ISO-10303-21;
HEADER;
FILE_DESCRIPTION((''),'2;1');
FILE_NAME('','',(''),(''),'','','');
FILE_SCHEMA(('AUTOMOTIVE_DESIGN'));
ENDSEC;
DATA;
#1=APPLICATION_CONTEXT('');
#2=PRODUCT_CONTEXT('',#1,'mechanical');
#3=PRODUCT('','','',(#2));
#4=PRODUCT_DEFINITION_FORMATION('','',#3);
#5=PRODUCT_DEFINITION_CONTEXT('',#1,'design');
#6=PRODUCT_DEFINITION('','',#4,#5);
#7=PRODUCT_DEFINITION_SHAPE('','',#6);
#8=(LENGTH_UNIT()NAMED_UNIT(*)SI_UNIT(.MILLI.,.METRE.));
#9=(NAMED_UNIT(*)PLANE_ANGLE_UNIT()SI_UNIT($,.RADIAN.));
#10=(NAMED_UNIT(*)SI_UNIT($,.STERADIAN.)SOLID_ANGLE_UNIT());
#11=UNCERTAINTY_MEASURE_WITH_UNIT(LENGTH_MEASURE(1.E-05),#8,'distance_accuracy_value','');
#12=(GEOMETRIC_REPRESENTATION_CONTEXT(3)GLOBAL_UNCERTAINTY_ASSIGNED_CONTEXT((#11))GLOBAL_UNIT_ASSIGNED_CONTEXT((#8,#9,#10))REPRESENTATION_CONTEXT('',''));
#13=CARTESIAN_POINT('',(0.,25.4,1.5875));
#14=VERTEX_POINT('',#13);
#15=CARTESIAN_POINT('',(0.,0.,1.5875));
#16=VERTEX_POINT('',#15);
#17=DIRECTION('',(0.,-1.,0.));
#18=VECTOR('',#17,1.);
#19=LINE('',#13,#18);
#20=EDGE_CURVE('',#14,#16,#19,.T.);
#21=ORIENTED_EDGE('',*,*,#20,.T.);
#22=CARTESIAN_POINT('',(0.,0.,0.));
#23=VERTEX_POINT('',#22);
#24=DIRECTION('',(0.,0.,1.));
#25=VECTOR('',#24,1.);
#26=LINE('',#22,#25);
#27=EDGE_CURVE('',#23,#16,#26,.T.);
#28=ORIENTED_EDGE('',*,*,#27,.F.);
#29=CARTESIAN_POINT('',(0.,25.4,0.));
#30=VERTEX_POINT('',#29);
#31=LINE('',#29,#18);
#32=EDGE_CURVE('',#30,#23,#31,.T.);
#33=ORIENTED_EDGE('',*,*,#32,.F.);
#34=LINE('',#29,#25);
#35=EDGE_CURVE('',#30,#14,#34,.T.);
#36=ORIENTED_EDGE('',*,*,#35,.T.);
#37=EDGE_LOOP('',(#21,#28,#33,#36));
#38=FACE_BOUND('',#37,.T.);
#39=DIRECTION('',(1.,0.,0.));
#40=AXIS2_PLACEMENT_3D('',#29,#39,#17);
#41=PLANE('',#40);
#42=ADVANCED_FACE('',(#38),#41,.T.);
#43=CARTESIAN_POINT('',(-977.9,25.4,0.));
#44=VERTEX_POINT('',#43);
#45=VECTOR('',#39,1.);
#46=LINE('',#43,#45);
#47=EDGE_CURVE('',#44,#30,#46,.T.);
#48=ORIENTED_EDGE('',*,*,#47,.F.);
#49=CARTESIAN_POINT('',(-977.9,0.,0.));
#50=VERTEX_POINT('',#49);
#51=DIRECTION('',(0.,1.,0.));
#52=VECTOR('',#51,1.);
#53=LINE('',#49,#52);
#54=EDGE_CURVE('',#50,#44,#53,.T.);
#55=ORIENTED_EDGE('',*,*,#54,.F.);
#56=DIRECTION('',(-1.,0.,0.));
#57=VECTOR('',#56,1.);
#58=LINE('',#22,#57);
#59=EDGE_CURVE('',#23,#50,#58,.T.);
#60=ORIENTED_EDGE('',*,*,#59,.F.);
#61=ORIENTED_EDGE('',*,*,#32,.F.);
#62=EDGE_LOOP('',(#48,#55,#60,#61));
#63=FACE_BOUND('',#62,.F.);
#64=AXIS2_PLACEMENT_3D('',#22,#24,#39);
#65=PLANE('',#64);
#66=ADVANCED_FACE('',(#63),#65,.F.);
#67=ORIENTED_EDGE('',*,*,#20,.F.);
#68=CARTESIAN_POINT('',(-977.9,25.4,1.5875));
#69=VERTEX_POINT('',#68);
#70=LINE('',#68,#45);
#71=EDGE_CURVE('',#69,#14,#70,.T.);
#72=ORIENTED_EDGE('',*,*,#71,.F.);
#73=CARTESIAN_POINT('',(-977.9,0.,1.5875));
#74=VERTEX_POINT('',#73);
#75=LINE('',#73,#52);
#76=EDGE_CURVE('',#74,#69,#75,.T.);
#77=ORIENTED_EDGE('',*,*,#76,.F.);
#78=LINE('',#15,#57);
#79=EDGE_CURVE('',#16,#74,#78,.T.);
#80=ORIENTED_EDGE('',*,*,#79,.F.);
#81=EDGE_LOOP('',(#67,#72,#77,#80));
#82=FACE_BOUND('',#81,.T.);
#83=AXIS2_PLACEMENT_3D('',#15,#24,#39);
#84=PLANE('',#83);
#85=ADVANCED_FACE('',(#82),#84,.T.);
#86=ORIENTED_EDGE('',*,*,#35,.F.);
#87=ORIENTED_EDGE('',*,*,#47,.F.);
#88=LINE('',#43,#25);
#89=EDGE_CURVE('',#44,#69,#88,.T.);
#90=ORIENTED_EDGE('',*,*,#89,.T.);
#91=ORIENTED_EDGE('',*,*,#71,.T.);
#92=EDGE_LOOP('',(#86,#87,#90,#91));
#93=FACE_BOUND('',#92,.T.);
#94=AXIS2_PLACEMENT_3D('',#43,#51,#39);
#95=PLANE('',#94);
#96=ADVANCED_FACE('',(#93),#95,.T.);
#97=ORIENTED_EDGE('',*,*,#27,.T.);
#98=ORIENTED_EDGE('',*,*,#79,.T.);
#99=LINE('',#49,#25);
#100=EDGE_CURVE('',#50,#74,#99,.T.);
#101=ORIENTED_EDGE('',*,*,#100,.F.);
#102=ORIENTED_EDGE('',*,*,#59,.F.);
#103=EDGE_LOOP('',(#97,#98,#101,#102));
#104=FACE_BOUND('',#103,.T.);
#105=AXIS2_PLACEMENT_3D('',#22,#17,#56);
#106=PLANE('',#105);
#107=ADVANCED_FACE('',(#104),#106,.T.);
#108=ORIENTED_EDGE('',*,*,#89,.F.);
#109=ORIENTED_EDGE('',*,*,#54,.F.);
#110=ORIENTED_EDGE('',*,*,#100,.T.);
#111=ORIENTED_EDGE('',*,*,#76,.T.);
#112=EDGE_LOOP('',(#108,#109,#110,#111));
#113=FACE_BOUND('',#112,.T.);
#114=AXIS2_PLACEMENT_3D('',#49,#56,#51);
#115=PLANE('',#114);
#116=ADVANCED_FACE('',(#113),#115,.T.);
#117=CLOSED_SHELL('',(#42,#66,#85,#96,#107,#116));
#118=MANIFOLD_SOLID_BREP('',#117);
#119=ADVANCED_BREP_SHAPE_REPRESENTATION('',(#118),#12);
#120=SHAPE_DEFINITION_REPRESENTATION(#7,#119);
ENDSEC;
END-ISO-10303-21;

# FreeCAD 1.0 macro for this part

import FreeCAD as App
import Part
import Sketcher
Q = App.Units.Quantity

doc = App.newDocument("Part")
body = doc.addObject("PartDesign::Body", "Body")

# Sketch on XY plane
sketch1 = body.newObject("Sketcher::SketchObject", "Sketch")
sketch1.AttachmentSupport = (doc.getObject("XY_Plane"), [""])
sketch1.MapMode = "FlatFace"
sketch1.addGeometry(Part.LineSegment(App.Vector(-978, 0, 0), App.Vector(0, 0, 0)), False)
sketch1.addGeometry(Part.LineSegment(App.Vector(0, 0, 0), App.Vector(0, 25, 0)), False)
sketch1.addGeometry(Part.LineSegment(App.Vector(0, 25, 0), App.Vector(-978, 25, 0)), False)
sketch1.addGeometry(Part.LineSegment(App.Vector(-978, 25, 0), App.Vector(-978, 0, 0)), False)
sketch1.addConstraint(Sketcher.Constraint("Coincident", 0, 2, 1, 1))
sketch1.addConstraint(Sketcher.Constraint("Coincident", 1, 2, 2, 1))
sketch1.addConstraint(Sketcher.Constraint("Coincident", 2, 2, 3, 1))
sketch1.addConstraint(Sketcher.Constraint("Coincident", 3, 2, 0, 1))
sketch1.addConstraint(Sketcher.Constraint("Horizontal", 0))
sketch1.addConstraint(Sketcher.Constraint("Vertical", 1))
sketch1.addConstraint(Sketcher.Constraint("Horizontal", 2))
sketch1.addConstraint(Sketcher.Constraint("Vertical", 3))
sketch1.addConstraint(Sketcher.Constraint("Coincident", 0, 2, -1, 1))
sketch1.addConstraint(Sketcher.Constraint("DistanceY", 1, 1, 1, 2, Q("1 in")))
sketch1.addConstraint(Sketcher.Constraint("DistanceX", 0, 1, 0, 2, Q("38.5 in")))
pad1 = body.newObject("PartDesign::Pad", "Pad")
pad1.Profile = sketch1
pad1.Length = Q("0.0625 in")

doc.recompute()
